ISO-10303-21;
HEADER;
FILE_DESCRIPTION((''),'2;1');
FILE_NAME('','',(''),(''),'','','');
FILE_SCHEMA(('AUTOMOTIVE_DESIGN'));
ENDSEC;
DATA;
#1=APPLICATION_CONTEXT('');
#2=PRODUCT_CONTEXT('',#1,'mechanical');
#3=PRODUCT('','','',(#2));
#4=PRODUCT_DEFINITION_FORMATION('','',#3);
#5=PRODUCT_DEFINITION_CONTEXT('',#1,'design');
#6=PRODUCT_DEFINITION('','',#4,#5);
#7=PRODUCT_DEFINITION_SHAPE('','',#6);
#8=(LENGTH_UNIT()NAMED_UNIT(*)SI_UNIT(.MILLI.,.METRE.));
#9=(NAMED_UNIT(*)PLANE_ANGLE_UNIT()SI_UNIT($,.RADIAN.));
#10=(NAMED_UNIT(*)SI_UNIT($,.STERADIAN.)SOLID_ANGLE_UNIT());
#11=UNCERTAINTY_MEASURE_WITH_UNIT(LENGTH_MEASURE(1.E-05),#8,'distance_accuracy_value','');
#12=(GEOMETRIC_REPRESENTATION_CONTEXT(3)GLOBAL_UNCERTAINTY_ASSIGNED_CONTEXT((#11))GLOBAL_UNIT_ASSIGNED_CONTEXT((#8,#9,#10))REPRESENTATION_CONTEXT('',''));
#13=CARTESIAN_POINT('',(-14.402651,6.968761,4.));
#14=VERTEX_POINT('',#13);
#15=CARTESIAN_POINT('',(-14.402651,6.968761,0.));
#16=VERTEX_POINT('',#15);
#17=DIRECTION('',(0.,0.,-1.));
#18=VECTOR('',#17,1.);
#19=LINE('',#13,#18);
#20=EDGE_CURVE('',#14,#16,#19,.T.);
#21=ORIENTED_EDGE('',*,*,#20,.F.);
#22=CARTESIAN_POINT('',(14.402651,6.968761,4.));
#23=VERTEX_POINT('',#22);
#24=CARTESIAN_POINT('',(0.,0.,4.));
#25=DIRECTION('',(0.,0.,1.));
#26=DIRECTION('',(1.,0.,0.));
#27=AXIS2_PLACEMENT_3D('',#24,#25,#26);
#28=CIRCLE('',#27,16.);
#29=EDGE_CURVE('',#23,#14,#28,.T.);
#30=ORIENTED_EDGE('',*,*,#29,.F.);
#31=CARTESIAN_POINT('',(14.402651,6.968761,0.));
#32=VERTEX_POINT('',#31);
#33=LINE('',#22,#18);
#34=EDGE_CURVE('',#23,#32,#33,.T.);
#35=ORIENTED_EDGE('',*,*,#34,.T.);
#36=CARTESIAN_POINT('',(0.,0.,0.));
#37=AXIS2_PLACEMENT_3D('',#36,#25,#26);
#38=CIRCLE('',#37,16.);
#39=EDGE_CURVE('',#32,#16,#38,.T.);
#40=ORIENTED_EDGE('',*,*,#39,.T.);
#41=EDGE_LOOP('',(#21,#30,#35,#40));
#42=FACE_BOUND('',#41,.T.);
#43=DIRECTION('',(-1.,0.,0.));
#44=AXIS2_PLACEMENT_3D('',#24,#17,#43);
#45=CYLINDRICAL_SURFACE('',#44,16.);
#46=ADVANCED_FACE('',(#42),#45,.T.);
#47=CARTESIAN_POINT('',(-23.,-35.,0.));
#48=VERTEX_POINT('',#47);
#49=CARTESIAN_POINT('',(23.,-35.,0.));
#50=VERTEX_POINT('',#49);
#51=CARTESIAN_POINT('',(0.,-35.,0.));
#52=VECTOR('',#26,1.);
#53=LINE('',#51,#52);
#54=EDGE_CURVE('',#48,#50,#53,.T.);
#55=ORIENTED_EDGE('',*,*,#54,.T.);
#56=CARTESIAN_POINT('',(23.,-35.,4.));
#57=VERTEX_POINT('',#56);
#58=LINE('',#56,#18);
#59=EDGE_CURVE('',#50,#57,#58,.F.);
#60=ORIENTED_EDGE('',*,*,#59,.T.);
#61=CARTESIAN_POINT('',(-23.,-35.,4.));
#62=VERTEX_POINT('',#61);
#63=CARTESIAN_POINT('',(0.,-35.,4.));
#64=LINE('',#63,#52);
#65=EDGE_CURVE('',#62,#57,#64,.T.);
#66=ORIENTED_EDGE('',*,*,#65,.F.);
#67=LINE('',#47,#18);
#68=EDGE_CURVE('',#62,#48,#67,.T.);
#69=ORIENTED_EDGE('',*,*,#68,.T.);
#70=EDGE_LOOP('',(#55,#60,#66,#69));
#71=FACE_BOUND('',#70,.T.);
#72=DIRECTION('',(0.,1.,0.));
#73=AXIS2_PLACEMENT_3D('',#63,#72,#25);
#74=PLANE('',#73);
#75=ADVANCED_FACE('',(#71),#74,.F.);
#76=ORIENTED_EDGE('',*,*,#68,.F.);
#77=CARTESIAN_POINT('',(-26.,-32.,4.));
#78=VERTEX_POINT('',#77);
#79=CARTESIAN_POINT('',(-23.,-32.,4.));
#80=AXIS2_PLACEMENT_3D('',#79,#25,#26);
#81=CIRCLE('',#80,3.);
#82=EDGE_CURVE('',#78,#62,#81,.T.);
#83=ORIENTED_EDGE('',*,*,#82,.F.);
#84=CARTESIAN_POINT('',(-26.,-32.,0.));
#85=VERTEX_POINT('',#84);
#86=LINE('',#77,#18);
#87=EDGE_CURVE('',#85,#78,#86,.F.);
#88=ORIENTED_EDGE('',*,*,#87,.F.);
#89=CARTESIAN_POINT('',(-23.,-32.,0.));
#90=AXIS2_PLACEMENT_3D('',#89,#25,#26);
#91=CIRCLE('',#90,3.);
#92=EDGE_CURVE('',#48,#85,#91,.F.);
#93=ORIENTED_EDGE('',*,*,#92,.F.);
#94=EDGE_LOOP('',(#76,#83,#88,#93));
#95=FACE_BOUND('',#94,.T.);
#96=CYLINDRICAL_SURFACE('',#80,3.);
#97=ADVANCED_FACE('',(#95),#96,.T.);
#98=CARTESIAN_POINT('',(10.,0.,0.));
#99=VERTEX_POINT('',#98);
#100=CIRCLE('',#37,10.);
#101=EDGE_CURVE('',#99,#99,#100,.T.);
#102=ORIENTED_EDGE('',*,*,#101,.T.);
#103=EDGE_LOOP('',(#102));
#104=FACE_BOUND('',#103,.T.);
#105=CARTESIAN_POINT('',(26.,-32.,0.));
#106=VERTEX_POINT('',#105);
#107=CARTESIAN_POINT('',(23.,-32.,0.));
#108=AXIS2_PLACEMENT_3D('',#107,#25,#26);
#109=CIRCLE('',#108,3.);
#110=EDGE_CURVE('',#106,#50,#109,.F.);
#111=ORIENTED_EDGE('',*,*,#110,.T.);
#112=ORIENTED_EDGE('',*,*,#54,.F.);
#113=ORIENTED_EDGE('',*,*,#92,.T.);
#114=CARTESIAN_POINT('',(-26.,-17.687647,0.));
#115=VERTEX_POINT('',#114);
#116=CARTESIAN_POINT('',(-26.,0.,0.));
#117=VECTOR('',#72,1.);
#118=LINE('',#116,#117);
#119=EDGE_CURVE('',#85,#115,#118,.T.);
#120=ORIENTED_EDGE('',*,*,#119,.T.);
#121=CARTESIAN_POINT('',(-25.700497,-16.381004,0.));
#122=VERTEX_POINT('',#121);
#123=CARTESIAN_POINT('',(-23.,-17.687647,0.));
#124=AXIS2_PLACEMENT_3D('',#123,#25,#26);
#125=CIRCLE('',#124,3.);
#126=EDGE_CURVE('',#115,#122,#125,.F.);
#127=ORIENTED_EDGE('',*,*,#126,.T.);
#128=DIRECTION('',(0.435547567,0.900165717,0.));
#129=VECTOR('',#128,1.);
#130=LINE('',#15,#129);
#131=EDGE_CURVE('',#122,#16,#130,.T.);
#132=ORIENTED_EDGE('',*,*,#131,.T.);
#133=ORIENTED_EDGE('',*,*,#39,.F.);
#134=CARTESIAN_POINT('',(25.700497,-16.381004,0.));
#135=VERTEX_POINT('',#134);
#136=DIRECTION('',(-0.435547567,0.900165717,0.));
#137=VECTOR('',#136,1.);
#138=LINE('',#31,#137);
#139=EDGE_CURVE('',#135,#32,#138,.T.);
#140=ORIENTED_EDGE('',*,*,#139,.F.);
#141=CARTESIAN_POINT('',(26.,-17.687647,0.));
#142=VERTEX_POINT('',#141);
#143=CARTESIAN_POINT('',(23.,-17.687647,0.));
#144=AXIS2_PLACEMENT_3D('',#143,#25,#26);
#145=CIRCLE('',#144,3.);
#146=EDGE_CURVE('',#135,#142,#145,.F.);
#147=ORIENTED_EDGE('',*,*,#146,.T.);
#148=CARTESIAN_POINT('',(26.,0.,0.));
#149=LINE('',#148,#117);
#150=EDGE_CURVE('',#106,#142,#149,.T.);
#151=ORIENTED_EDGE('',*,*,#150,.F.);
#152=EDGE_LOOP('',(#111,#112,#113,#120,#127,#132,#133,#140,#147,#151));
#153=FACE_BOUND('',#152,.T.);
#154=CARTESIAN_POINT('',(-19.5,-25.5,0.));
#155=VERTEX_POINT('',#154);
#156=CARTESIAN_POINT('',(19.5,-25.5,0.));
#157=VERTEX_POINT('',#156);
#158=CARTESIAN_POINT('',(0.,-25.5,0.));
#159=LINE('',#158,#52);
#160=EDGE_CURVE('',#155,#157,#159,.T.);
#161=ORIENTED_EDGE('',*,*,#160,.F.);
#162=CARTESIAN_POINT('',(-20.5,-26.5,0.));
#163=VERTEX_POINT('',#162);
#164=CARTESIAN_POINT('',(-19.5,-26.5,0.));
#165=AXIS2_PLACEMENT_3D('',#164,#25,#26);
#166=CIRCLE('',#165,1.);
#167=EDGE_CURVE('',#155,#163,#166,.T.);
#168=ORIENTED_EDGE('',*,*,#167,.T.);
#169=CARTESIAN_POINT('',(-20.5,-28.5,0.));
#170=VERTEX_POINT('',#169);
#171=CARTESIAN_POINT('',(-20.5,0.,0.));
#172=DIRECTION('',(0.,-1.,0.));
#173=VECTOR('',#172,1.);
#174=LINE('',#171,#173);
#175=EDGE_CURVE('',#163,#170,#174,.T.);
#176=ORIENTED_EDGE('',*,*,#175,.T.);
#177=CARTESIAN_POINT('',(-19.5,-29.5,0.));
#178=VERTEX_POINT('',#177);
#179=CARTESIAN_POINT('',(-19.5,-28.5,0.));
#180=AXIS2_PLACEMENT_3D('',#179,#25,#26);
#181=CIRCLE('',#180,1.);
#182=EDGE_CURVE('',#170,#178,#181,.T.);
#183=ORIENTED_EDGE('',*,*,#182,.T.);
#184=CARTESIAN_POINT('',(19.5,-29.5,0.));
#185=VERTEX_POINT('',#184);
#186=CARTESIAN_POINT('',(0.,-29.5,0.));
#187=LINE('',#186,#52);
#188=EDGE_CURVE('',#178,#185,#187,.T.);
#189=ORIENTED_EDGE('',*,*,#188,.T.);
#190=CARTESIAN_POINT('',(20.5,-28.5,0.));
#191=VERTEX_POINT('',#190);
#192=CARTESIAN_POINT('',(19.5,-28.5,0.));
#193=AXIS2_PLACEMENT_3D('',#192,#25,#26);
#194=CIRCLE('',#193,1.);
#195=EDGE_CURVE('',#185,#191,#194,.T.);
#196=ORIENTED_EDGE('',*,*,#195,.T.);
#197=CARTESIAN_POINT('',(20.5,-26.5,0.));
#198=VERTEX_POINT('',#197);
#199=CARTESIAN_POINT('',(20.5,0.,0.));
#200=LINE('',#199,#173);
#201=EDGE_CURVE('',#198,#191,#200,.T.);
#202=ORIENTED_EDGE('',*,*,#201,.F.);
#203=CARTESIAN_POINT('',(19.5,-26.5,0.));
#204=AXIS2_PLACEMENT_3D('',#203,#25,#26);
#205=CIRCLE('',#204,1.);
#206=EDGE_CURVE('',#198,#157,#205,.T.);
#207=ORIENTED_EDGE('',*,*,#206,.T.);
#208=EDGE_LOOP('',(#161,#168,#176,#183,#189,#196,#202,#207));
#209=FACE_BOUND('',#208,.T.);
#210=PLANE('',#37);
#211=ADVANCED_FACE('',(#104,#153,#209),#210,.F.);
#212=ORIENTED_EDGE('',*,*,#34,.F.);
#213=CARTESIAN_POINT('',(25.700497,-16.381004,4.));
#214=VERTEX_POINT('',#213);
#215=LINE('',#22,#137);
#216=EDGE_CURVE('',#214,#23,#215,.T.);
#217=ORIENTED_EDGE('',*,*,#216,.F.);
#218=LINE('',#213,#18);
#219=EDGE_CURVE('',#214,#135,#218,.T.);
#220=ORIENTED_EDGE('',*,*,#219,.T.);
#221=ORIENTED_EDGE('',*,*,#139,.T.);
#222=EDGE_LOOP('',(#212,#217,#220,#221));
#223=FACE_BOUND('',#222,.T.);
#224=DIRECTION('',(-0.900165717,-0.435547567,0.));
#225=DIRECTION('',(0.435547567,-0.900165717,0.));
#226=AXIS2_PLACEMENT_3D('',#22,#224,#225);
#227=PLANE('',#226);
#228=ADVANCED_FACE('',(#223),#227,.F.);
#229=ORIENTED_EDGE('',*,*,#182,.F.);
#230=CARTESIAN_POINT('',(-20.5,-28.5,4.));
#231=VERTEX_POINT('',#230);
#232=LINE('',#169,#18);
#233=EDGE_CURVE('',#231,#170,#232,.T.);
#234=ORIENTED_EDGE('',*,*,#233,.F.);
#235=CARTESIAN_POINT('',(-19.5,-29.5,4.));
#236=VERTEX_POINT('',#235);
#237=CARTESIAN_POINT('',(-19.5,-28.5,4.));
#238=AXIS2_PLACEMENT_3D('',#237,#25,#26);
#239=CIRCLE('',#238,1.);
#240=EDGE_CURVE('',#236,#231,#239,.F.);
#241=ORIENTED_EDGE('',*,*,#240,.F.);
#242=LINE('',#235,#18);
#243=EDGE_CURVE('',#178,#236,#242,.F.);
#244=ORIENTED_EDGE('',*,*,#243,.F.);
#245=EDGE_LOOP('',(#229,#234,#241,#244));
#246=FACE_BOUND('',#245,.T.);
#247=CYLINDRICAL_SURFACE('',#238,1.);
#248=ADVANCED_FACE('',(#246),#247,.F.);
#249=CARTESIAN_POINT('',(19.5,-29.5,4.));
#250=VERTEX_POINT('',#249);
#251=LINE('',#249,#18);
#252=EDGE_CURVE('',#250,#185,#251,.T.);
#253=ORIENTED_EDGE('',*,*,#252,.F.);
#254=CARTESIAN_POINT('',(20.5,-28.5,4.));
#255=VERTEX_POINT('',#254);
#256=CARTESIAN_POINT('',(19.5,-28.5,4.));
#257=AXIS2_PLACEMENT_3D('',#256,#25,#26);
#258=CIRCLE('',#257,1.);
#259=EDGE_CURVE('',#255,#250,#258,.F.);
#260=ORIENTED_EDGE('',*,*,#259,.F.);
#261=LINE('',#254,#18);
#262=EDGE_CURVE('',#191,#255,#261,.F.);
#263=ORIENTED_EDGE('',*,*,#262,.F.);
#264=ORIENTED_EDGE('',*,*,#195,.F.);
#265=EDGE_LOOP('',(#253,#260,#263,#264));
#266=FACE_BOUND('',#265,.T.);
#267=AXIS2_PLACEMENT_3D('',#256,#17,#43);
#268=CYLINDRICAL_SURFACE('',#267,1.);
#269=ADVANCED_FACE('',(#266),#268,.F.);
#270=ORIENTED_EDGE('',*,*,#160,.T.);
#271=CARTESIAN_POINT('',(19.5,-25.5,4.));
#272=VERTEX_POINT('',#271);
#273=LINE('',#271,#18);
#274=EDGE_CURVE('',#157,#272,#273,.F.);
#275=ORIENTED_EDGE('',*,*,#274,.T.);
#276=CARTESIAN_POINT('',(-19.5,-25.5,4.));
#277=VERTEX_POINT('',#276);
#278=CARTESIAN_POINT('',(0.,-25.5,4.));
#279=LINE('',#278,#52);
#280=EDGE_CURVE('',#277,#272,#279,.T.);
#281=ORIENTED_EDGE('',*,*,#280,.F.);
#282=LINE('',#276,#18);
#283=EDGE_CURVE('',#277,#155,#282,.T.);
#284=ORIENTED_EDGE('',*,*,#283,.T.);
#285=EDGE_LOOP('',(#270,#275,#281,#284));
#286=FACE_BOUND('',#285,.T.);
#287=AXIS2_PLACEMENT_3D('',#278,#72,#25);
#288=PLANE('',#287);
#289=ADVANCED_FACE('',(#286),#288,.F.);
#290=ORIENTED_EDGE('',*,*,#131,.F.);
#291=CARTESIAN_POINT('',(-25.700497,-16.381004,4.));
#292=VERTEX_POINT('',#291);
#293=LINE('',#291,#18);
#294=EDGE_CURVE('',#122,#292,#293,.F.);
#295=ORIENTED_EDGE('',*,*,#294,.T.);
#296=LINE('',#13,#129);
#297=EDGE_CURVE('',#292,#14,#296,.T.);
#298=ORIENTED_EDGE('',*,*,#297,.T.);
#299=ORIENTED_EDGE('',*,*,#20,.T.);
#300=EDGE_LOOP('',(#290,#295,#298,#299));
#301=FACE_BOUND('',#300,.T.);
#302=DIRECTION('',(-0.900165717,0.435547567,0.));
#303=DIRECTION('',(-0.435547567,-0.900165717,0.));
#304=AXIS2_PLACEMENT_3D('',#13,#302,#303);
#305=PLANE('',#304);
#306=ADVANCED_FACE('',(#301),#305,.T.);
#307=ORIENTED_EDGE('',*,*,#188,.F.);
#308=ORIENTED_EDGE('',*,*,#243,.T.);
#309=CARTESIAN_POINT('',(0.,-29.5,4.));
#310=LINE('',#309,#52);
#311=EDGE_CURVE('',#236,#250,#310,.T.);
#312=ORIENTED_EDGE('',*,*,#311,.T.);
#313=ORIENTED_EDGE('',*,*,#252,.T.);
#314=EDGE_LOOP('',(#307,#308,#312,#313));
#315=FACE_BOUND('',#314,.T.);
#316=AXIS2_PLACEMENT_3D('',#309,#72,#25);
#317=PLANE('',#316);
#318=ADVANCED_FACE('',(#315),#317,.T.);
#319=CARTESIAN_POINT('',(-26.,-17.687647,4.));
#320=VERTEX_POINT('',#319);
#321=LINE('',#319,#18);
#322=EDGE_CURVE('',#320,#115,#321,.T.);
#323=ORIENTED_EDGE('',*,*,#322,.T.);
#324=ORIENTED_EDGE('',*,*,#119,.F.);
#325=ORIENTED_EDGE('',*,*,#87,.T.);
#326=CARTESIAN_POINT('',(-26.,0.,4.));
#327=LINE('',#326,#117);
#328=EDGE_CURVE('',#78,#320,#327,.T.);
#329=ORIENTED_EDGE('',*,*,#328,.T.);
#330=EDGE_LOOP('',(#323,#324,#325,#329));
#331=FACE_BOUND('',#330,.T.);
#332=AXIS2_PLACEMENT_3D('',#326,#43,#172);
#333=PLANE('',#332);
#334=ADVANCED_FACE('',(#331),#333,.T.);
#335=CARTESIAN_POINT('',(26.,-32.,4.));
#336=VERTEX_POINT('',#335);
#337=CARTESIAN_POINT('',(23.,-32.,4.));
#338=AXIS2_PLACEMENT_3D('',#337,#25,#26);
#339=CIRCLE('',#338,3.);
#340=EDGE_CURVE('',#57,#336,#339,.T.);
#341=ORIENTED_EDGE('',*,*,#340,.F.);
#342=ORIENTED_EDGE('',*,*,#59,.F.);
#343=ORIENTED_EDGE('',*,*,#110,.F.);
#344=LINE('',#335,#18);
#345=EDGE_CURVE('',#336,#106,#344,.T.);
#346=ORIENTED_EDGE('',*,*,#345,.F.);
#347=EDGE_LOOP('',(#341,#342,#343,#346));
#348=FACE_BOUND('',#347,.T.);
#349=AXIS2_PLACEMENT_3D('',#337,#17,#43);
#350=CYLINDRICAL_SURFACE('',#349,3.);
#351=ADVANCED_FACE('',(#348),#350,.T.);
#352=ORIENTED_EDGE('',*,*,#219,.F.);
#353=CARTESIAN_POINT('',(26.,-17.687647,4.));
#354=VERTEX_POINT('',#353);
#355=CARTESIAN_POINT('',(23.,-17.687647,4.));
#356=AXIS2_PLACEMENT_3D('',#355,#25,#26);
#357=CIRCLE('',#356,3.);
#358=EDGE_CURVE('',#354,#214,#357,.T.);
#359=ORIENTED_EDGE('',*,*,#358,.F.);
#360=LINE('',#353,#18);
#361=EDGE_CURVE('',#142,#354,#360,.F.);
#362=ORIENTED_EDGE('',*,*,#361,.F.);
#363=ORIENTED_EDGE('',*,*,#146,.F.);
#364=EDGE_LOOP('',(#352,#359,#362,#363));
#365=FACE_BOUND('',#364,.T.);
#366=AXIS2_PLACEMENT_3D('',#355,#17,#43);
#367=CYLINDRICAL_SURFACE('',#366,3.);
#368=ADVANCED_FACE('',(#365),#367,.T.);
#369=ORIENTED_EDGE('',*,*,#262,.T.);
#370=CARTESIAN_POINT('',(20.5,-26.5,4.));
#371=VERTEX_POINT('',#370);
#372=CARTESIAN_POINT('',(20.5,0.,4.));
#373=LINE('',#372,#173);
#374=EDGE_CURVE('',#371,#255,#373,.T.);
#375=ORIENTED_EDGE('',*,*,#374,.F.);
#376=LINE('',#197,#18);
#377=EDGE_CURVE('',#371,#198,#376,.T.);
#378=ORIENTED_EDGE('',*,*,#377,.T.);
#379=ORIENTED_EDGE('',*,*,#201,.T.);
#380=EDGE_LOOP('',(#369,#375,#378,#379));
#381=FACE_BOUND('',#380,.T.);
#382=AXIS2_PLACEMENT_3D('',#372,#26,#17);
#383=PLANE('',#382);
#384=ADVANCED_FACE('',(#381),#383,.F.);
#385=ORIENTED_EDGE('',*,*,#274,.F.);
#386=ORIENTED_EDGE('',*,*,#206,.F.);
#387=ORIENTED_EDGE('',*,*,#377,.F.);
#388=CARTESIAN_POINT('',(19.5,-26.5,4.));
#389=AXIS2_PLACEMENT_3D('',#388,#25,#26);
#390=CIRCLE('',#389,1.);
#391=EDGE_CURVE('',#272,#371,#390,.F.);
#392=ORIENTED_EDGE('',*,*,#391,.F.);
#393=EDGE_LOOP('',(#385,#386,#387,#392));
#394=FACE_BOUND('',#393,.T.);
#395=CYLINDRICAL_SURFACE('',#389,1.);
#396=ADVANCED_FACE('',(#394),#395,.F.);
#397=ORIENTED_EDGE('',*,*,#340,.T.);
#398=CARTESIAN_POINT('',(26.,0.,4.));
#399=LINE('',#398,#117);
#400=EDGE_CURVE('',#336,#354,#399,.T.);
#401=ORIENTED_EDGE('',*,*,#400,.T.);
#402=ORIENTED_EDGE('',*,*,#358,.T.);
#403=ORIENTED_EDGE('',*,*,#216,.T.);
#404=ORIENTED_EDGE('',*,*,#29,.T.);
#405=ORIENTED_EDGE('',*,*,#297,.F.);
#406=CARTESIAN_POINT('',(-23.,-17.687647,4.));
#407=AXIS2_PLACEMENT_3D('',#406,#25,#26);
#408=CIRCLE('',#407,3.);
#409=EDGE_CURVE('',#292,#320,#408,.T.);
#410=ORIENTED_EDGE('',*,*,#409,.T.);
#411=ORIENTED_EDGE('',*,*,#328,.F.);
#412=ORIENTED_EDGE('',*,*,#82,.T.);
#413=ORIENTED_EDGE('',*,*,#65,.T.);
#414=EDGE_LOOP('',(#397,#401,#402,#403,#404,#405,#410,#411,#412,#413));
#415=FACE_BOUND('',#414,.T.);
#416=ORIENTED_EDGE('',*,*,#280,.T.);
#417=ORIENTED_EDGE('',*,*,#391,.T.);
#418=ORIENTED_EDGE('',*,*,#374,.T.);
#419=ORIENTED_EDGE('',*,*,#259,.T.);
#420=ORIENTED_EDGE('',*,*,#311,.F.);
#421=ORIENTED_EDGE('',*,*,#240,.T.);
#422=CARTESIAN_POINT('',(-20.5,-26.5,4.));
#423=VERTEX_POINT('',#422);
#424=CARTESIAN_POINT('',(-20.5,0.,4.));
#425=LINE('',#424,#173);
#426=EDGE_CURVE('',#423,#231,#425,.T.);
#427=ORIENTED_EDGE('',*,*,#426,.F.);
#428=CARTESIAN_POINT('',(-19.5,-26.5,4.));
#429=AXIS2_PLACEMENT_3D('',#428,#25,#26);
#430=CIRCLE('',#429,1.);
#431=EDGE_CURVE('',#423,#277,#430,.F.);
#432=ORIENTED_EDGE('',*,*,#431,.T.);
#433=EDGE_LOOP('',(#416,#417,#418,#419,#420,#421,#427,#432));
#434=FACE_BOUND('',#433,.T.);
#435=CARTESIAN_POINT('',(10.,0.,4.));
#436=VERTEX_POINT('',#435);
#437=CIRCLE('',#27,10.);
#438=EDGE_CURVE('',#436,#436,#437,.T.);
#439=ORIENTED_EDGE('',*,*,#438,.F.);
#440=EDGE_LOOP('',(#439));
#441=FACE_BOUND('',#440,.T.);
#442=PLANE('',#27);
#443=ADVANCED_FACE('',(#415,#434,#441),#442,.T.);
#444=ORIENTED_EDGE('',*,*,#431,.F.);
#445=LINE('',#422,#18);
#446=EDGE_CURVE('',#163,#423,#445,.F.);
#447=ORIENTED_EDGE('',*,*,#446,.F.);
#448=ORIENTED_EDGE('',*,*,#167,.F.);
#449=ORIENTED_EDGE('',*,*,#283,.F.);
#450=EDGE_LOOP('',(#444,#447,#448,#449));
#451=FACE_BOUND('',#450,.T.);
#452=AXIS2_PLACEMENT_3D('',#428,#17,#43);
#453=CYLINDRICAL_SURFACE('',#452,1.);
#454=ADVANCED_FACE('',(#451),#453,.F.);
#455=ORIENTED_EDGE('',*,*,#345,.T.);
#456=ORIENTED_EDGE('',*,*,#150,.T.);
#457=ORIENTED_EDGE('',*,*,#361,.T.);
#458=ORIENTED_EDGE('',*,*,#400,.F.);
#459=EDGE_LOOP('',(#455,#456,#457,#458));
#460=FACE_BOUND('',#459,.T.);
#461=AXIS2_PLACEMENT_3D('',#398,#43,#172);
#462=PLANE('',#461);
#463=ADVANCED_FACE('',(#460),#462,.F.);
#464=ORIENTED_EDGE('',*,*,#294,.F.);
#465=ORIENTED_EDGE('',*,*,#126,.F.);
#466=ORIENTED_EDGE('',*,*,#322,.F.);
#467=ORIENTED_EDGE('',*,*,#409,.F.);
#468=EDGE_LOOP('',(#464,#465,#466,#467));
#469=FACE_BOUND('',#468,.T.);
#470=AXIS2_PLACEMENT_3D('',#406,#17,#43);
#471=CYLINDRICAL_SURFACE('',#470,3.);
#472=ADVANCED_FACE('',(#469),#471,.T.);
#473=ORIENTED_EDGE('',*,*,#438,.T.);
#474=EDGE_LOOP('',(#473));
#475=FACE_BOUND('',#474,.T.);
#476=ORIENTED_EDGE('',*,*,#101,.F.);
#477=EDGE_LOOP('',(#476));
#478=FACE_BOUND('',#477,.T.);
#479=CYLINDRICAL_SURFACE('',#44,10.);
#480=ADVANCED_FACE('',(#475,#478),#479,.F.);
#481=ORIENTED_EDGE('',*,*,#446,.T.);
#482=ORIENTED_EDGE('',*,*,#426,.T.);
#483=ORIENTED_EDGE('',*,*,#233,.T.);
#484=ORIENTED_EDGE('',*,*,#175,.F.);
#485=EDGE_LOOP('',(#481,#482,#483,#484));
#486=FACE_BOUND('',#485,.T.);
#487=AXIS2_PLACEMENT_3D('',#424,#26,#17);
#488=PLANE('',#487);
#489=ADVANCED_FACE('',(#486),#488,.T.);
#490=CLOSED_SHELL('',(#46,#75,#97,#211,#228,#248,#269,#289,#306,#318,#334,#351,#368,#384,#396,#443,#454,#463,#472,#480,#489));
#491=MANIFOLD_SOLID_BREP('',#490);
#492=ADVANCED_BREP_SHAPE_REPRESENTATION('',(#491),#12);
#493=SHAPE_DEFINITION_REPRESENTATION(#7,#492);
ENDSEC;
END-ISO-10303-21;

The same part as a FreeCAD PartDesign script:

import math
import FreeCAD as App
import Part
import Sketcher
from FreeCAD import Vector


def edges_at(feature, points):
    """Names of the edges that pass closest to the given points."""
    edges = feature.Shape.Edges
    near = lambda p: min(range(len(edges)), key=lambda i: edges[i].distToShape(Part.Vertex(*p))[0])
    return sorted({f"Edge{near(p) + 1}" for p in points})


def add_polygon(sketch, points):
    """Adds a closed chain of lines whose ends are joined by coincident constraints."""
    first, n = sketch.GeometryCount, len(points)
    for a, b in zip(points, points[1:] + points[:1]):
        sketch.addGeometry(Part.LineSegment(App.Vector(*a, 0), App.Vector(*b, 0)), False)
    for i in range(n):
        sketch.addConstraint(Sketcher.Constraint("Coincident", first + i, 2, first + (i + 1) % n, 1))

doc = App.newDocument("Part")
body = doc.addObject("PartDesign::Body", "Body")

# Sketch on XY plane
sketch1 = body.newObject("Sketcher::SketchObject", "Sketch")
sketch1.AttachmentSupport = (doc.getObject("XY_Plane"), [""])
sketch1.MapMode = "FlatFace"
sketch1.addGeometry(Part.LineSegment(Vector(-26, -35, 0), Vector(26, -35, 0)), False)  # 0
sketch1.addGeometry(Part.LineSegment(Vector(26, -35, 0), Vector(26, -17, 0)), False)  # 1
sketch1.addGeometry(Part.LineSegment(Vector(26, -17, 0), Vector(14.4, 7, 0)), False)  # 2
sketch1.addGeometry(Part.ArcOfCircle(Part.Circle(Vector(0, 0, 0), Vector(0, 0, 1), 16), math.radians(26), math.radians(154)), False)  # 3
sketch1.addGeometry(Part.LineSegment(Vector(-14.4, 7, 0), Vector(-26, -17, 0)), False)  # 4
sketch1.addGeometry(Part.LineSegment(Vector(-26, -17, 0), Vector(-26, -35, 0)), False)  # 5
add_polygon(sketch1, [(20.5, -29.5), (-20.5, -29.5), (-20.5, -25.5), (20.5, -25.5)])  # lines 6-9
sketch1.addGeometry(Part.Circle(Vector(0, 0, 0), Vector(0, 0, 1), 10), False)  # 10
sketch1.addConstraint([
    Sketcher.Constraint("Coincident", 0, 2, 1, 1),
    Sketcher.Constraint("Coincident", 1, 2, 2, 1),
    Sketcher.Constraint("Tangent", 2, 2, 3, 1),
    Sketcher.Constraint("Tangent", 3, 2, 4, 1),
    Sketcher.Constraint("Coincident", 4, 2, 5, 1),
    Sketcher.Constraint("Coincident", 5, 2, 0, 1),
    Sketcher.Constraint("Horizontal", 0),
    Sketcher.Constraint("Vertical", 1),
    Sketcher.Constraint("Vertical", 5),
    Sketcher.Constraint("Horizontal", 6),
    Sketcher.Constraint("Vertical", 7),
    Sketcher.Constraint("Horizontal", 8),
    Sketcher.Constraint("Vertical", 9),
    Sketcher.Constraint("Coincident", 3, 3, -1, 1),
    Sketcher.Constraint("Coincident", 10, 3, -1, 1),
    Sketcher.Constraint("Symmetric", 1, 2, 4, 2, -2),
    Sketcher.Constraint("Diameter", 10, 20.0),
    Sketcher.Constraint("Radius", 3, 16.0),
    Sketcher.Constraint("DistanceX", 0, 1, 0, 2, 52.0),
    Sketcher.Constraint("DistanceX", 6, 2, 6, 1, 41.0),
    Sketcher.Constraint("DistanceY", 1, 1, 1, 2, 18.0),
    Sketcher.Constraint("DistanceY", 7, 1, 7, 2, 4.0),
    Sketcher.Constraint("DistanceY", 0, 2, -1, 1, 35.0),
    Sketcher.Constraint("DistanceX", 6, 2, -1, 1, 20.5),
    Sketcher.Constraint("DistanceY", 6, 2, -1, 1, 29.5),
])
pad1 = body.newObject("PartDesign::Pad", "Pad")
pad1.Profile = sketch1
pad1.Length = 4
doc.recompute()

fillet = body.newObject("PartDesign::Fillet", "Fillet")
fillet.Base = (pad1, edges_at(pad1, [
    (-26, -35, 2),
    (-26, -17, 2),
    (26, -17, 2),
    (26, -35, 2),
]))
fillet.Radius = 3
doc.recompute()

fillet2 = body.newObject("PartDesign::Fillet", "Fillet001")
fillet2.Base = (fillet, edges_at(fillet, [
    (-20.5, -25.5, 2),
    (-20.5, -29.5, 2),
    (20.5, -29.5, 2),
    (20.5, -25.5, 2),
]))
fillet2.Radius = 1

doc.recompute()
